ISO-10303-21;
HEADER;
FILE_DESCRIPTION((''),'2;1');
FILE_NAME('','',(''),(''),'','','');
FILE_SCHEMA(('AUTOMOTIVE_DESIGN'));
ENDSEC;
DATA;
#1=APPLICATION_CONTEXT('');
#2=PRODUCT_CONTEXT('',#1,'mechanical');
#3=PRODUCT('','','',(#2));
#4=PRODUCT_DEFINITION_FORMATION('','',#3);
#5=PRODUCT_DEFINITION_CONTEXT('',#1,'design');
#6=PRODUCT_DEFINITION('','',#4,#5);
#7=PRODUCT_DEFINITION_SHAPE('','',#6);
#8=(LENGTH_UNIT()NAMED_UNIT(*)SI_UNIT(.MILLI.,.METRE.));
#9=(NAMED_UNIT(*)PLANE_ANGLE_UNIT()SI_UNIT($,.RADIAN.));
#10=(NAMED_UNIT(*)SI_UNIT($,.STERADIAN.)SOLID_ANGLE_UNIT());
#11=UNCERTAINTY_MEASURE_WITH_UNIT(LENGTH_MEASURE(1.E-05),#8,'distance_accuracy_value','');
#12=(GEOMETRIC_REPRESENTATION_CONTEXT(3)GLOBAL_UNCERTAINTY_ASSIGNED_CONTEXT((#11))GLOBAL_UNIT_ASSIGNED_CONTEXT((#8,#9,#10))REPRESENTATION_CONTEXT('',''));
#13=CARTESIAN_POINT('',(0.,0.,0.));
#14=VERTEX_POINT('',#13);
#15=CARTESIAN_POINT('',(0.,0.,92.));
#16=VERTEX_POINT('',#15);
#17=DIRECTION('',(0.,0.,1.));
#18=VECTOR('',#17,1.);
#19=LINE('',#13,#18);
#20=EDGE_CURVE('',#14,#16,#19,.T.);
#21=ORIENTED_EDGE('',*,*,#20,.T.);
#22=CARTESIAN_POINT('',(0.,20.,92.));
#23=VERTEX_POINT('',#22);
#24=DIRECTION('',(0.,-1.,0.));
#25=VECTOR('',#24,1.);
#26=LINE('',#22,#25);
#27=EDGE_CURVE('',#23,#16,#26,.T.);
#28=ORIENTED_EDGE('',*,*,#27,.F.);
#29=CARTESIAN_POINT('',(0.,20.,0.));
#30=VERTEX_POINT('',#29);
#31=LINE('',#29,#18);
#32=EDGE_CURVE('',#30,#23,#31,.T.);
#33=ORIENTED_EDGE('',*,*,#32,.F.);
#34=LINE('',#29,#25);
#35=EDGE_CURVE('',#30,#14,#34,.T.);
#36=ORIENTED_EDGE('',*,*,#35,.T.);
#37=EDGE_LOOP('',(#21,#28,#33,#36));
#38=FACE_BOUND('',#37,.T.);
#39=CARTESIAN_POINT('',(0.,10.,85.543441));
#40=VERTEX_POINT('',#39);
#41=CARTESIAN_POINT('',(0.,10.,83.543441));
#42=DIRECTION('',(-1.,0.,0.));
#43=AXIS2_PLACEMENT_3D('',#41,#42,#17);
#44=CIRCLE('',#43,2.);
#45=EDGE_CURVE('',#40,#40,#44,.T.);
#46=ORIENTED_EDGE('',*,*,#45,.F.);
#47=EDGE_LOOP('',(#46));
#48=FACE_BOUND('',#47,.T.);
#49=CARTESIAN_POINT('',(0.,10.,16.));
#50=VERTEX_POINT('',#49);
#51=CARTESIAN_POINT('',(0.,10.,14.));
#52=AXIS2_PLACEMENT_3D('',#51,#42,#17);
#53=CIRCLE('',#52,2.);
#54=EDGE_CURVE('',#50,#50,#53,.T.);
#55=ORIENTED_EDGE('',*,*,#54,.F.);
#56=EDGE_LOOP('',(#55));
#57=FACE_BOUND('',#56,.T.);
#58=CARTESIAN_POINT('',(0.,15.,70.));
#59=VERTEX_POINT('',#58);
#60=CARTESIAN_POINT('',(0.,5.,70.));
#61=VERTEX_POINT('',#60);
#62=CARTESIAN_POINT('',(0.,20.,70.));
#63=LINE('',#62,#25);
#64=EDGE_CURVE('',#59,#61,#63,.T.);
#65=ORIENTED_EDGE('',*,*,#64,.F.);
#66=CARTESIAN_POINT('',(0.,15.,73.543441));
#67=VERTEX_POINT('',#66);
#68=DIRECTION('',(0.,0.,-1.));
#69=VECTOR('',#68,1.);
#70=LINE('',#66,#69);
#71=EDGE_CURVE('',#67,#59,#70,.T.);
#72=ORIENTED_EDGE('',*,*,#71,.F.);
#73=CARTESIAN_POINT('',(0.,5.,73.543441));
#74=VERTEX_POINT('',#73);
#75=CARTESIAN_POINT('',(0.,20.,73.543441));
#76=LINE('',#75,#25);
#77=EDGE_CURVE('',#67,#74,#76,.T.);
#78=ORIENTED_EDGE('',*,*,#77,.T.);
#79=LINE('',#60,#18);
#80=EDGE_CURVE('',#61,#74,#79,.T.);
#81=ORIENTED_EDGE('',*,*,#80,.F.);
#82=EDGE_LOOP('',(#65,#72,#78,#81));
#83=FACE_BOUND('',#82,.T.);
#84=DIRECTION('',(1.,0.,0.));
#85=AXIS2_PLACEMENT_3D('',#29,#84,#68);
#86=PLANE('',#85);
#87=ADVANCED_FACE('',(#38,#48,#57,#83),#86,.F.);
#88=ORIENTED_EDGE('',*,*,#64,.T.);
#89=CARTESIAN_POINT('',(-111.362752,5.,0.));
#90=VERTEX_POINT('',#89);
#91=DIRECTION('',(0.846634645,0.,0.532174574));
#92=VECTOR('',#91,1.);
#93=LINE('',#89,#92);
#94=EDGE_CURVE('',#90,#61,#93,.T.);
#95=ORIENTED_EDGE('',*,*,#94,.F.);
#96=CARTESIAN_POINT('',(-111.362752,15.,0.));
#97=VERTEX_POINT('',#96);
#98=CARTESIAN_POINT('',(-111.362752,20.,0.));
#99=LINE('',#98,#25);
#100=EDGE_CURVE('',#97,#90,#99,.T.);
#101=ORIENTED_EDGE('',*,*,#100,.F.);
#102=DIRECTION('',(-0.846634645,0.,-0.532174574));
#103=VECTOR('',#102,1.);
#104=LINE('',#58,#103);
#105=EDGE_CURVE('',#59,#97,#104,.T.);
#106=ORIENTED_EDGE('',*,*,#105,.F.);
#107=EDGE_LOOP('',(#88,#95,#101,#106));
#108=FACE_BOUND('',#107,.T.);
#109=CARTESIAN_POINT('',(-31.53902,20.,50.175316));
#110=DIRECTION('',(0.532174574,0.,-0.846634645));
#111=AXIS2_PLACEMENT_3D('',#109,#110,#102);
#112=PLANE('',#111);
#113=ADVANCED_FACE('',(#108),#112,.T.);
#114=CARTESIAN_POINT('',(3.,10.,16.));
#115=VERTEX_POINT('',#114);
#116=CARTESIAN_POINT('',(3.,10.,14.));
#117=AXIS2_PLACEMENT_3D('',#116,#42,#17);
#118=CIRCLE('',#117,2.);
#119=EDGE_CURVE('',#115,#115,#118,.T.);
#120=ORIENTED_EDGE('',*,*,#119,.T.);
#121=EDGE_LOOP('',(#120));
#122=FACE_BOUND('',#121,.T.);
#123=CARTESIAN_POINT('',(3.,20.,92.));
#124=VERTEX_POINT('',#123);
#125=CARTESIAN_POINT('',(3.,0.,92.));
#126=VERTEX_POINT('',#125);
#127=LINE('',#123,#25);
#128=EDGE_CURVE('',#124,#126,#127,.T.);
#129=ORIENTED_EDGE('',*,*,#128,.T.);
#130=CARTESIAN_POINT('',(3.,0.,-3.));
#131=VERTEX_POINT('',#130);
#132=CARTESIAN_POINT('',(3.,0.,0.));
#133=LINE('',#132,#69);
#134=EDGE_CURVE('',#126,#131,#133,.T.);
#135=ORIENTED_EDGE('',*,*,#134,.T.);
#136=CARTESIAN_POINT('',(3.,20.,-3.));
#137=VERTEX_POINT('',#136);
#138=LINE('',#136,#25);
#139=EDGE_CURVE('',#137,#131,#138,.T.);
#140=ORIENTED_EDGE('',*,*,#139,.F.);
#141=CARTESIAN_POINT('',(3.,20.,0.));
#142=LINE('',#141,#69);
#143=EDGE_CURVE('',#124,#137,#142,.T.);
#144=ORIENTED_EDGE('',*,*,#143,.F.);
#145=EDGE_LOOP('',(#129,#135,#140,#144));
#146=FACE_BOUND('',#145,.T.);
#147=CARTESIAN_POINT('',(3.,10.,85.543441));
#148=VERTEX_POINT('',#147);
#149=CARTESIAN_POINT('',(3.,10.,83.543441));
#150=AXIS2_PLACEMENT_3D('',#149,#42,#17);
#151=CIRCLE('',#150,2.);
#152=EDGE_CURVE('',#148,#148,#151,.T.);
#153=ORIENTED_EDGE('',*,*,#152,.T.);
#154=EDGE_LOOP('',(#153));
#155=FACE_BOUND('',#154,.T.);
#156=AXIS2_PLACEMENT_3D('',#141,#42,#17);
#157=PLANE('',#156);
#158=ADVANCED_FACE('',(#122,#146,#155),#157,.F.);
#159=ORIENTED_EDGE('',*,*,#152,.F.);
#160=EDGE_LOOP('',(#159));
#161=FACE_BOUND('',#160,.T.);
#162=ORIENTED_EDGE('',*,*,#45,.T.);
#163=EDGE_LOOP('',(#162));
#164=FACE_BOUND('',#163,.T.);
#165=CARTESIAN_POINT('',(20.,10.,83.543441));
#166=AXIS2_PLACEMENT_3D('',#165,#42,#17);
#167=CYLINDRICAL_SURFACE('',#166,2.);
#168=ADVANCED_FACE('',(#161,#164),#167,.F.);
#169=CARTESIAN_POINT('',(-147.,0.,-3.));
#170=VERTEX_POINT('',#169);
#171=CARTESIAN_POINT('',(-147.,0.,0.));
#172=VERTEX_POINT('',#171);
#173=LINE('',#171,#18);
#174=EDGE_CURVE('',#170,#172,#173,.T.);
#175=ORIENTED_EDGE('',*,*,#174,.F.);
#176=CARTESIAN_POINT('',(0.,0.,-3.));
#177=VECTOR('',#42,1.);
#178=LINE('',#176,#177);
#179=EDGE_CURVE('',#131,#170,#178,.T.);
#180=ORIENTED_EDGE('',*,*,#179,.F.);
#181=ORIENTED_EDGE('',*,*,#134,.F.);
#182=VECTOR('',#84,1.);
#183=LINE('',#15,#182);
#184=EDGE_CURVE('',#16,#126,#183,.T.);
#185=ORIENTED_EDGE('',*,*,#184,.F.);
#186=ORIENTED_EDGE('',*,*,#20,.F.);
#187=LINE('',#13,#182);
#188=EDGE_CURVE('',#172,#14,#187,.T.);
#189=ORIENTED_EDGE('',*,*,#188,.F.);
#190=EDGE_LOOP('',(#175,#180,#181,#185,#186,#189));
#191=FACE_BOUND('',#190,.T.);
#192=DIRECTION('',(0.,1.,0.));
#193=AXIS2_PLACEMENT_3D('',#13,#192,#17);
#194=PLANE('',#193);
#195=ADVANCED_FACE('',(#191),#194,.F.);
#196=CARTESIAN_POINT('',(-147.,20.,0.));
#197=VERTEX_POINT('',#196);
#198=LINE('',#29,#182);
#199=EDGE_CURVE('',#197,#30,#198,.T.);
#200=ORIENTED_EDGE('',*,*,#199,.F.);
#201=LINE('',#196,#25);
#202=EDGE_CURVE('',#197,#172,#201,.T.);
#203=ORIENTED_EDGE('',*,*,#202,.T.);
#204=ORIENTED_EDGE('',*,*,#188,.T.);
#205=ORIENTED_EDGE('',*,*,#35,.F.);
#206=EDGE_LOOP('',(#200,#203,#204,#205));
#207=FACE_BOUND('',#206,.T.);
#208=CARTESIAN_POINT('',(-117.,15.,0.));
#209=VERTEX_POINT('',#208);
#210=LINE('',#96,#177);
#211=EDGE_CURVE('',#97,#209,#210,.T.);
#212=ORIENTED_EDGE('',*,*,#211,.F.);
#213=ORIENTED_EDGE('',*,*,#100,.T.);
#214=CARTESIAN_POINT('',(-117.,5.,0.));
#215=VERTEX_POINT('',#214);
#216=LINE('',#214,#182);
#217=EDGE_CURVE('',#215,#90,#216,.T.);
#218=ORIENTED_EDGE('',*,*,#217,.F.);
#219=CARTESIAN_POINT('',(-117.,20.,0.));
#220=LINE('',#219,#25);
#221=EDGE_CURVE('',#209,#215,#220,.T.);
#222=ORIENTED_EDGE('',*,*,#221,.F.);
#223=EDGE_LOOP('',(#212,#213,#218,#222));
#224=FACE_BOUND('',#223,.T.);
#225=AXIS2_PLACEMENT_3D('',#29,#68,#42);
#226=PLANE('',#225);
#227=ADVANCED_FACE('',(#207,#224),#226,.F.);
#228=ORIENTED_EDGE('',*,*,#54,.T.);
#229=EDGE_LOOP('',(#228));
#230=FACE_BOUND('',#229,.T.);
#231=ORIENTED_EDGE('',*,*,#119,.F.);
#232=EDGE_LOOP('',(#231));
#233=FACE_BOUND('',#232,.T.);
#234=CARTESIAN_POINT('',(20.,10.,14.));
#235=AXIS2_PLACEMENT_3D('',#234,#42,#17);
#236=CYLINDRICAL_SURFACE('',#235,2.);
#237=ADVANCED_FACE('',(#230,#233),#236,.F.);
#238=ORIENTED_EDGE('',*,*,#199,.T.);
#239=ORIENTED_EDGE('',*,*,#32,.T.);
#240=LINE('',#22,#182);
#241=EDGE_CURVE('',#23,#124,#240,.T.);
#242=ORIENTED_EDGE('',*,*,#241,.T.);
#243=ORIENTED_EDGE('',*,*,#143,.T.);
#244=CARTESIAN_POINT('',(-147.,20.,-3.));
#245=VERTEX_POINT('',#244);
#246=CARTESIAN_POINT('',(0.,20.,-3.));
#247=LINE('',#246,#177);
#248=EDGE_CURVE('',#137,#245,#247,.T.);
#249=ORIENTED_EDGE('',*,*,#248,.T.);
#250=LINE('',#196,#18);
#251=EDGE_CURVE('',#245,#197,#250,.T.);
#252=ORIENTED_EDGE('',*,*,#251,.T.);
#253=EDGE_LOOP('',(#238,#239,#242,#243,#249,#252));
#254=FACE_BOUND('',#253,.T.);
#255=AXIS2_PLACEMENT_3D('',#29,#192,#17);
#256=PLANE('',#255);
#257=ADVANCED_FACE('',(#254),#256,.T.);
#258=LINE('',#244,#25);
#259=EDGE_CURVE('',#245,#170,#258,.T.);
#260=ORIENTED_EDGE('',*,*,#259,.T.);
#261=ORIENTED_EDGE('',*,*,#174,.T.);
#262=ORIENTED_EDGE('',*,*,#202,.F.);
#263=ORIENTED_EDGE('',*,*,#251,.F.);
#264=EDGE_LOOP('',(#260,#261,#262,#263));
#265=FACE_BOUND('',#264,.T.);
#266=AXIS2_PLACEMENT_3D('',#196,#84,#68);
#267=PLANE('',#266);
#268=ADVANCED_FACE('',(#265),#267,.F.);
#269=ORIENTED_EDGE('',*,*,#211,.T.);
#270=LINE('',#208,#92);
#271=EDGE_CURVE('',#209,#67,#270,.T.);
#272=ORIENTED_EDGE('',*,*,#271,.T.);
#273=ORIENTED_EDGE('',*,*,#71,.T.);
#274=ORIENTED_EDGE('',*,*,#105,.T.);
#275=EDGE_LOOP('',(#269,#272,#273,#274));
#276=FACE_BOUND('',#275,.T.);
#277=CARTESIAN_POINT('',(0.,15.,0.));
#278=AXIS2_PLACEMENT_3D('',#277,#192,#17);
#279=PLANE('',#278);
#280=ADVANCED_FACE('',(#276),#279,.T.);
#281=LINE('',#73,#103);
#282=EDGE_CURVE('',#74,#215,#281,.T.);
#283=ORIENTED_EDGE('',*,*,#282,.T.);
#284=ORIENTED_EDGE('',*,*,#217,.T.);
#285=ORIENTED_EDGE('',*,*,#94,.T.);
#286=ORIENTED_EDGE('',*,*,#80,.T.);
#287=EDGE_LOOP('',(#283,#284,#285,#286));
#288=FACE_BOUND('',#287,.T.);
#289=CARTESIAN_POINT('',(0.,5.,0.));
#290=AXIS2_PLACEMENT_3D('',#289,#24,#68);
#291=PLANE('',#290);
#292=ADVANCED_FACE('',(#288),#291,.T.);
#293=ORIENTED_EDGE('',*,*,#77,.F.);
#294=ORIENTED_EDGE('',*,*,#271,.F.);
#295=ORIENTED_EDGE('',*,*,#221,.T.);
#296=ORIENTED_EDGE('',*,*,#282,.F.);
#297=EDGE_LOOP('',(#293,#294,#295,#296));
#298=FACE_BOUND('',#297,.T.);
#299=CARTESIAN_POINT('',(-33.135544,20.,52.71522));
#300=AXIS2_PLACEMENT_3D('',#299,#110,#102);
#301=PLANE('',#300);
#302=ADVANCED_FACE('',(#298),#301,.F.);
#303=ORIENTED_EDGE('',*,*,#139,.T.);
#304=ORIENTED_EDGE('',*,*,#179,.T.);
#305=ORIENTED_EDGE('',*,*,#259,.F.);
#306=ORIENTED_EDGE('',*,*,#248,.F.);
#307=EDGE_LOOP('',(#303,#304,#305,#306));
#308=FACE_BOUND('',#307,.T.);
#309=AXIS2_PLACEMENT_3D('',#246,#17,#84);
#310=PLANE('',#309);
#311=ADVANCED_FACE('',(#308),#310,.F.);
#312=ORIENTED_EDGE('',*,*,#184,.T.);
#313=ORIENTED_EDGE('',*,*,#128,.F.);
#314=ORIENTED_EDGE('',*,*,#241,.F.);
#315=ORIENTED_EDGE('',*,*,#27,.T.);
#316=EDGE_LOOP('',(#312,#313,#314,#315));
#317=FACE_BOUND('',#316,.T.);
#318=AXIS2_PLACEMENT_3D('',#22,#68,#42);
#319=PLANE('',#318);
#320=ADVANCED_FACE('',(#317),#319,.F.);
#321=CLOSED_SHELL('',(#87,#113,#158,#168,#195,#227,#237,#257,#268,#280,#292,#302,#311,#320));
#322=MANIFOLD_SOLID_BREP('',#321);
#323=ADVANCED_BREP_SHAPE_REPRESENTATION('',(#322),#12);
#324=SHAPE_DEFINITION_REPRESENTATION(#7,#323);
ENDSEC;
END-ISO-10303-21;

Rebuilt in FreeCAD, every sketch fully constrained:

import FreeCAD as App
import Part
import Sketcher
Q = App.Units.Quantity


def add_polygon(sketch, points):
    """Adds a closed chain of lines whose ends are joined by coincident constraints."""
    first, n = sketch.GeometryCount, len(points)
    for a, b in zip(points, points[1:] + points[:1]):
        sketch.addGeometry(Part.LineSegment(App.Vector(*a, 0), App.Vector(*b, 0)), False)
    for i in range(n):
        sketch.addConstraint(Sketcher.Constraint("Coincident", first + i, 2, first + (i + 1) % n, 1))

doc = App.newDocument("Part")
body = doc.addObject("PartDesign::Body", "Body")

# Sketch on XZ plane
sketch1 = body.newObject("Sketcher::SketchObject", "Sketch")
sketch1.AttachmentSupport = (doc.getObject("XZ_Plane"), [""])
sketch1.MapMode = "FlatFace"
add_polygon(sketch1, [(3, 92), (3, -3), (-147, -3), (-147, 0), (-117, 0), (0, 73.543441), (0, 92)])  # lines 0-6
add_polygon(sketch1, [(-111.362752, 0), (0, 0), (0, 70)])  # lines 7-9
sketch1.addConstraint([
    Sketcher.Constraint("Vertical", 0),
    Sketcher.Constraint("Horizontal", 1),
    Sketcher.Constraint("Vertical", 2),
    Sketcher.Constraint("Horizontal", 3),
    Sketcher.Constraint("Vertical", 5),
    Sketcher.Constraint("Horizontal", 6),
    Sketcher.Constraint("Horizontal", 7),
    Sketcher.Constraint("Vertical", 8),
    Sketcher.Constraint("Coincident", 7, 2, -1, 1),
    Sketcher.Constraint("PointOnObject", 2, 2, -1),
    Sketcher.Constraint("PointOnObject", 4, 2, -2),
    Sketcher.Constraint("Parallel", 4, 9),
    Sketcher.Constraint("Equal", 6, 2),
    Sketcher.Constraint("DistanceX", 1, 2, 1, 1, Q("150 mm")),
    Sketcher.Constraint("DistanceX", 3, 1, 3, 2, Q("30 mm")),
    Sketcher.Constraint("DistanceX", 6, 1, 6, 2, Q("3 mm")),
    Sketcher.Constraint("DistanceY", 0, 2, 0, 1, Q("95 mm")),
    Sketcher.Constraint("DistanceY", 8, 1, 8, 2, Q("70 mm")),
    Sketcher.Constraint("DistanceY", 5, 1, 5, 2, Q("18.456559 mm")),
])
pad1 = body.newObject("PartDesign::Pad", "Pad")
pad1.Profile = sketch1
pad1.Length = 20
pad1.Reversed = True

# Sketch on YZ plane
sketch2 = body.newObject("Sketcher::SketchObject", "Sketch001")
sketch2.AttachmentSupport = (doc.getObject("YZ_Plane"), [""])
sketch2.MapMode = "FlatFace"
sketch2.addGeometry([
    Part.Circle(App.Vector(10, 83.543441, 0), App.Vector(0, 0, 1), 2),
    Part.Circle(App.Vector(10, 14, 0), App.Vector(0, 0, 1), 2),
], False)
sketch2.addConstraint([
    Sketcher.Constraint("Equal", 0, 1),
    Sketcher.Constraint("Vertical", 0, 3, 1, 3),
    Sketcher.Constraint("Diameter", 0, Q("4 mm")),
    Sketcher.Constraint("DistanceX", -1, 1, 0, 3, Q("10 mm")),
    Sketcher.Constraint("DistanceY", -1, 1, 1, 3, Q("14 mm")),
    Sketcher.Constraint("DistanceY", -1, 1, 0, 3, Q("83.543441 mm")),
])
pocket1 = body.newObject("PartDesign::Pocket", "Pocket")
pocket1.Profile = sketch2
pocket1.Length = 20
pocket1.Reversed = True

# Sketch on XZ plane
sketch3 = body.newObject("Sketcher::SketchObject", "Sketch002")
sketch3.AttachmentSupport = (doc.getObject("XZ_Plane"), [""])
sketch3.MapMode = "FlatFace"
add_polygon(sketch3, [(0, 70), (0, 73.543441), (-117, 0), (-111.362752, 0)])  # lines 0-3
sketch3.addConstraint([
    Sketcher.Constraint("Vertical", 0),
    Sketcher.Constraint("Horizontal", 2),
    Sketcher.Constraint("PointOnObject", 0, 2, -2),
    Sketcher.Constraint("PointOnObject", 1, 2, -1),
    Sketcher.Constraint("Parallel", 1, 3),
    Sketcher.Constraint("DistanceX", 1, 2, -1, 1, Q("117 mm")),
    Sketcher.Constraint("DistanceY", -1, 1, 3, 2, Q("70 mm")),
    Sketcher.Constraint("DistanceY", 0, 1, 0, 2, Q("3.543441 mm")),
])
pocket2 = body.newObject("PartDesign::Pocket", "Pocket001")
pocket2.Profile = sketch3
pocket2.Length = 5

# Sketch on XZ plane
sketch4 = body.newObject("Sketcher::SketchObject", "Sketch003")
sketch4.AttachmentSupport = (doc.getObject("XZ_Plane"), [""])
sketch4.MapMode = "FlatFace"
sketch4.AttachmentOffset = App.Placement(App.Vector(0, 0, -20), App.Rotation())
add_polygon(sketch4, [(0, 73.543441), (0, 70), (-111.362752, 0), (-117, 0)])  # lines 0-3
sketch4.addConstraint([
    Sketcher.Constraint("Vertical", 0),
    Sketcher.Constraint("Horizontal", 2),
    Sketcher.Constraint("PointOnObject", 0, 2, -2),
    Sketcher.Constraint("PointOnObject", 1, 2, -1),
    Sketcher.Constraint("Parallel", 1, 3),
    Sketcher.Constraint("DistanceY", -1, 1, 0, 2, Q("70 mm")),
    Sketcher.Constraint("DistanceX", 2, 2, -1, 1, Q("117 mm")),
    Sketcher.Constraint("DistanceY", 0, 2, 0, 1, Q("3.543441 mm")),
])
pocket3 = body.newObject("PartDesign::Pocket", "Pocket002")
pocket3.Profile = sketch4
pocket3.Length = 5
pocket3.Reversed = True

doc.recompute()
